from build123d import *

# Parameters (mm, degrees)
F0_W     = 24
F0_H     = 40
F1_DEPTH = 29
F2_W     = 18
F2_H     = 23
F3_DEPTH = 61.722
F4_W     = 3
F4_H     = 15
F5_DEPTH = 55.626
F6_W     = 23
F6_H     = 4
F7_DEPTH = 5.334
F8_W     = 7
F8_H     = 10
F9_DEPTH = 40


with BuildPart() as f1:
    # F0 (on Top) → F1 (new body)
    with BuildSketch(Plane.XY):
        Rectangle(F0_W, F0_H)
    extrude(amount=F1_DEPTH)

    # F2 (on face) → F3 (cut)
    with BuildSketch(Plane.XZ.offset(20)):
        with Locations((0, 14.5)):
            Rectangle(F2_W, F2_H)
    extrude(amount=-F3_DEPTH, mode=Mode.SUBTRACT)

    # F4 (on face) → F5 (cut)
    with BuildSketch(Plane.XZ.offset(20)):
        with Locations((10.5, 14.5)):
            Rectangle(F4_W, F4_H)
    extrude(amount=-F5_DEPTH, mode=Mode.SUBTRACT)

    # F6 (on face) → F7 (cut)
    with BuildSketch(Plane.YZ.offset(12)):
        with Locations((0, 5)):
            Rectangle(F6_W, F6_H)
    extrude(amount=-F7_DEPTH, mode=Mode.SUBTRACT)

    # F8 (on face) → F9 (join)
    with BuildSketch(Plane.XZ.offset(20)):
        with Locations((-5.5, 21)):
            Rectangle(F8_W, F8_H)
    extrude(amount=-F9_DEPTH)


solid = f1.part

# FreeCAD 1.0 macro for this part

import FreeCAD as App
import Part
import Sketcher

V = App.Vector
Q = App.Units.Quantity


def add_polygon(sketch, points):
    """Adds a closed chain of lines whose ends are joined by coincident constraints."""
    first, n = sketch.GeometryCount, len(points)
    for a, b in zip(points, points[1:] + points[:1]):
        sketch.addGeometry(Part.LineSegment(App.Vector(*a, 0), App.Vector(*b, 0)), False)
    for i in range(n):
        sketch.addConstraint(Sketcher.Constraint("Coincident", first + i, 2, first + (i + 1) % n, 1))

doc = App.newDocument("Part")
params = doc.addObject("Spreadsheet::Sheet", "Params")
for row, (alias, value) in enumerate([
    ("sketch1_width", "24 mm"),
    ("sketch1_height", "40 mm"),
    ("pad1_length", "29 mm"),
    ("sketch2_width", "18 mm"),
    ("sketch2_height", "23 mm"),
    ("pocket1_length", "61.722 mm"),
    ("sketch3_width", "3 mm"),
    ("sketch3_height", "15 mm"),
    ("pocket2_length", "55.626 mm"),
    ("sketch4_width", "23 mm"),
    ("sketch4_height", "4 mm"),
    ("pocket3_length", "5.334 mm"),
    ("sketch5_width", "7 mm"),
    ("sketch5_height", "10 mm"),
    ("pad2_length", "40 mm"),
], start=1):
    params.set(f"A{row}", alias)
    params.set(f"B{row}", "=" + value)
    params.setAlias(f"B{row}", alias)

body = doc.addObject("PartDesign::Body", "Body")

# Sketch on XY plane
sketch1 = doc.addObject("Sketcher::SketchObject", "Sketch")
body.addObject(sketch1)
sketch1.AttachmentSupport = (doc.XY_Plane, [""])
sketch1.MapMode = "FlatFace"
add_polygon(sketch1, [(-12, 20), (-12, -20), (12, -20), (12, 20)])  # lines 0-3
sketch1.addConstraint(Sketcher.Constraint("Vertical", 0))
sketch1.addConstraint(Sketcher.Constraint("Horizontal", 1))
sketch1.addConstraint(Sketcher.Constraint("Vertical", 2))
sketch1.addConstraint(Sketcher.Constraint("Horizontal", 3))
sketch1.addConstraint(Sketcher.Constraint("Symmetric", 0, 2, 2, 2, -1, 1))
sketch1.addConstraint(Sketcher.Constraint("DistanceX", 1, 1, 1, 2, Q("24 mm")))
sketch1.addConstraint(Sketcher.Constraint("DistanceY", 0, 2, 0, 1, Q("40 mm")))
sketch1.setExpression("Constraints[9]", "Params.sketch1_width")
sketch1.setExpression("Constraints[10]", "Params.sketch1_height")
pad1 = doc.addObject("PartDesign::Pad", "Pad")
body.addObject(pad1)
pad1.Profile = sketch1
pad1.setExpression("Length", "Params.pad1_length")

# Sketch on XZ plane
sketch2 = doc.addObject("Sketcher::SketchObject", "Sketch001")
body.addObject(sketch2)
sketch2.AttachmentSupport = (doc.XZ_Plane, [""])
sketch2.MapMode = "FlatFace"
sketch2.AttachmentOffset = App.Placement(V(0, 0, 20), App.Rotation())
add_polygon(sketch2, [(-9, 26), (-9, 3), (9, 3), (9, 26)])  # lines 0-3
sketch2.addConstraint(Sketcher.Constraint("Vertical", 0))
sketch2.addConstraint(Sketcher.Constraint("Horizontal", 1))
sketch2.addConstraint(Sketcher.Constraint("Vertical", 2))
sketch2.addConstraint(Sketcher.Constraint("Horizontal", 3))
sketch2.addConstraint(Sketcher.Constraint("DistanceX", 1, 1, 1, 2, Q("18 mm")))
sketch2.addConstraint(Sketcher.Constraint("DistanceY", 0, 2, 0, 1, Q("23 mm")))
sketch2.addConstraint(Sketcher.Constraint("DistanceX", 0, 2, -1, 1, Q("9 mm")))
sketch2.addConstraint(Sketcher.Constraint("DistanceY", -1, 1, 0, 2, Q("3 mm")))
sketch2.setExpression("Constraints[8]", "Params.sketch2_width")
sketch2.setExpression("Constraints[9]", "Params.sketch2_height")
pocket1 = doc.addObject("PartDesign::Pocket", "Pocket")
body.addObject(pocket1)
pocket1.Profile = sketch2
pocket1.setExpression("Length", "Params.pocket1_length")

# Sketch on XZ plane
sketch3 = doc.addObject("Sketcher::SketchObject", "Sketch002")
body.addObject(sketch3)
sketch3.AttachmentSupport = (doc.XZ_Plane, [""])
sketch3.MapMode = "FlatFace"
sketch3.AttachmentOffset = App.Placement(V(0, 0, 20), App.Rotation())
add_polygon(sketch3, [(9, 22), (9, 7), (12, 7), (12, 22)])  # lines 0-3
sketch3.addConstraint(Sketcher.Constraint("Vertical", 0))
sketch3.addConstraint(Sketcher.Constraint("Horizontal", 1))
sketch3.addConstraint(Sketcher.Constraint("Vertical", 2))
sketch3.addConstraint(Sketcher.Constraint("Horizontal", 3))
sketch3.addConstraint(Sketcher.Constraint("DistanceX", 1, 1, 1, 2, Q("3 mm")))
sketch3.addConstraint(Sketcher.Constraint("DistanceY", 0, 2, 0, 1, Q("15 mm")))
sketch3.addConstraint(Sketcher.Constraint("DistanceX", -1, 1, 0, 2, Q("9 mm")))
sketch3.addConstraint(Sketcher.Constraint("DistanceY", -1, 1, 0, 2, Q("7 mm")))
sketch3.setExpression("Constraints[8]", "Params.sketch3_width")
sketch3.setExpression("Constraints[9]", "Params.sketch3_height")
pocket2 = doc.addObject("PartDesign::Pocket", "Pocket001")
body.addObject(pocket2)
pocket2.Profile = sketch3
pocket2.setExpression("Length", "Params.pocket2_length")

# Sketch on YZ plane
sketch4 = doc.addObject("Sketcher::SketchObject", "Sketch003")
body.addObject(sketch4)
sketch4.AttachmentSupport = (doc.YZ_Plane, [""])
sketch4.MapMode = "FlatFace"
sketch4.AttachmentOffset = App.Placement(V(0, 0, 12), App.Rotation())
add_polygon(sketch4, [(-11.5, 7), (-11.5, 3), (11.5, 3), (11.5, 7)])  # lines 0-3
sketch4.addConstraint(Sketcher.Constraint("Vertical", 0))
sketch4.addConstraint(Sketcher.Constraint("Horizontal", 1))
sketch4.addConstraint(Sketcher.Constraint("Vertical", 2))
sketch4.addConstraint(Sketcher.Constraint("Horizontal", 3))
sketch4.addConstraint(Sketcher.Constraint("DistanceX", 1, 1, 1, 2, Q("23 mm")))
sketch4.addConstraint(Sketcher.Constraint("DistanceY", 0, 2, 0, 1, Q("4 mm")))
sketch4.addConstraint(Sketcher.Constraint("DistanceY", -1, 1, 0, 2, Q("3 mm")))
sketch4.addConstraint(Sketcher.Constraint("DistanceX", 0, 2, -1, 1, Q("11.5 mm")))
sketch4.setExpression("Constraints[8]", "Params.sketch4_width")
sketch4.setExpression("Constraints[9]", "Params.sketch4_height")
pocket3 = doc.addObject("PartDesign::Pocket", "Pocket002")
body.addObject(pocket3)
pocket3.Profile = sketch4
pocket3.setExpression("Length", "Params.pocket3_length")

# Sketch on XZ plane
sketch5 = doc.addObject("Sketcher::SketchObject", "Sketch004")
body.addObject(sketch5)
sketch5.AttachmentSupport = (doc.XZ_Plane, [""])
sketch5.MapMode = "FlatFace"
sketch5.AttachmentOffset = App.Placement(V(0, 0, 20), App.Rotation())
add_polygon(sketch5, [(-9, 26), (-9, 16), (-2, 16), (-2, 26)])  # lines 0-3
sketch5.addConstraint(Sketcher.Constraint("Vertical", 0))
sketch5.addConstraint(Sketcher.Constraint("Horizontal", 1))
sketch5.addConstraint(Sketcher.Constraint("Vertical", 2))
sketch5.addConstraint(Sketcher.Constraint("Horizontal", 3))
sketch5.addConstraint(Sketcher.Constraint("DistanceX", 1, 1, 1, 2, Q("7 mm")))
sketch5.addConstraint(Sketcher.Constraint("DistanceY", 0, 2, 0, 1, Q("10 mm")))
sketch5.addConstraint(Sketcher.Constraint("DistanceX", 0, 2, -1, 1, Q("9 mm")))
sketch5.addConstraint(Sketcher.Constraint("DistanceY", -1, 1, 0, 2, Q("16 mm")))
sketch5.setExpression("Constraints[8]", "Params.sketch5_width")
sketch5.setExpression("Constraints[9]", "Params.sketch5_height")
pad2 = doc.addObject("PartDesign::Pad", "Pad001")
body.addObject(pad2)
pad2.Profile = sketch5
pad2.setExpression("Length", "Params.pad2_length")
pad2.Reversed = True

doc.recompute()
